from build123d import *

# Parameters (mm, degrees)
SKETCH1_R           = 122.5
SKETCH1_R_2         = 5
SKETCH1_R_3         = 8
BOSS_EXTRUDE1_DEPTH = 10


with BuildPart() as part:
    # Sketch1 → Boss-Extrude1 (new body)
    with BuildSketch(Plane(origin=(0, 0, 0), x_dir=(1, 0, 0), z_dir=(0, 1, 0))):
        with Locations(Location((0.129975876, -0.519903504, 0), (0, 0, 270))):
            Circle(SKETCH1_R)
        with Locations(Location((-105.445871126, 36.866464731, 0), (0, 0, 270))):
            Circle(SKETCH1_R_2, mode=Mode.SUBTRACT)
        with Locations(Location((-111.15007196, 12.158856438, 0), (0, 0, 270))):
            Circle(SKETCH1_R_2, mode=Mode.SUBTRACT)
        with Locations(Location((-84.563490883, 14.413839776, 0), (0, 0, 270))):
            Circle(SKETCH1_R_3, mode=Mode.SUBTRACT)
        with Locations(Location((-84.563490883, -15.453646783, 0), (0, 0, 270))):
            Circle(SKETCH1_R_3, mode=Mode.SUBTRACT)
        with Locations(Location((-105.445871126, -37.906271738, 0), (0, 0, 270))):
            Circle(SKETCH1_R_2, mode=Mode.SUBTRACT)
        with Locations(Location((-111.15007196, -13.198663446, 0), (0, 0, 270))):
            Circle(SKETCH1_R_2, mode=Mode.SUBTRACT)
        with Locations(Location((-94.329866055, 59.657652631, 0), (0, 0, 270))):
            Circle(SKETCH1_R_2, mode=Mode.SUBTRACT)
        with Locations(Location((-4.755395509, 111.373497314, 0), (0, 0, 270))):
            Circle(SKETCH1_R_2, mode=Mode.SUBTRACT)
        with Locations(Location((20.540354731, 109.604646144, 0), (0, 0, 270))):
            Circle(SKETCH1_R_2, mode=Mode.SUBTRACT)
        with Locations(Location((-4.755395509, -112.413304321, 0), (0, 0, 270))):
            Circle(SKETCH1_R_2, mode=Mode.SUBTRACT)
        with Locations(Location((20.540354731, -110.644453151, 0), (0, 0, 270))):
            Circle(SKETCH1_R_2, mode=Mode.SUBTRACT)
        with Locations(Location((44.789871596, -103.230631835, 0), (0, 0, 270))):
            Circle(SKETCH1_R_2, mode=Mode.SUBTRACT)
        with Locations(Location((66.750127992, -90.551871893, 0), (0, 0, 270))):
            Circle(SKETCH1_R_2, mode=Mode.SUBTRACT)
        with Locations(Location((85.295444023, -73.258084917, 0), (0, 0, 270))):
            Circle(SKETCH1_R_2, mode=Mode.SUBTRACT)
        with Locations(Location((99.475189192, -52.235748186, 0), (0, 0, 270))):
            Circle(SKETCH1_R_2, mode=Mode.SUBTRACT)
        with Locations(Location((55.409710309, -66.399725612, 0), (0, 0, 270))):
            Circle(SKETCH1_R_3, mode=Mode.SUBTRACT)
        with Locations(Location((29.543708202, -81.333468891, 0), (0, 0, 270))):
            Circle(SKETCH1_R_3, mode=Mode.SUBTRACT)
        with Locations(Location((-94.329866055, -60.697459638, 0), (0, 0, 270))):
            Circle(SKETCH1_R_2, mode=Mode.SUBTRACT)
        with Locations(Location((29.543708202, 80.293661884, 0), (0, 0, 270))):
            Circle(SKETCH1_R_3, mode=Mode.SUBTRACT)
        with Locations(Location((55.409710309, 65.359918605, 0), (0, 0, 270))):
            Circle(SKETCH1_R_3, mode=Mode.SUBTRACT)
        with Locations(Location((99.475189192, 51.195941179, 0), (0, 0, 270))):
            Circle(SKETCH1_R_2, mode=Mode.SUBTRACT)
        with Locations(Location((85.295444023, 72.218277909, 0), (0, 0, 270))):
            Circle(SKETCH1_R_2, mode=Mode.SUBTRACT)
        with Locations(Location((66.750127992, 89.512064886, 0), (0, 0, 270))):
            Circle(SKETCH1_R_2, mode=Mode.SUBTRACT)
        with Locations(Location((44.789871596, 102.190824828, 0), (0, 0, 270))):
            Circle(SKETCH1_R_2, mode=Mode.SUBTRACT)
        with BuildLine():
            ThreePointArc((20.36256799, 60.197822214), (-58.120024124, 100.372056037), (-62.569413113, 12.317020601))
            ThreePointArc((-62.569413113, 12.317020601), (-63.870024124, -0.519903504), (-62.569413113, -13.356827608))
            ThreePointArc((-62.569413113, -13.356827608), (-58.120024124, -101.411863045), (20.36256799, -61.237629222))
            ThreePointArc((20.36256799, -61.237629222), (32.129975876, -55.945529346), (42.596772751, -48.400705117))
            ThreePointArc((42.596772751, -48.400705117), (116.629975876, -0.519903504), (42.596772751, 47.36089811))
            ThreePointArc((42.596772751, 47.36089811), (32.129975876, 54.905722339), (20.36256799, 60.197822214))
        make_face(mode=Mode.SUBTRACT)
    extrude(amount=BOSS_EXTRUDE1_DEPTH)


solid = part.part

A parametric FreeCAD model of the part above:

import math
import FreeCAD as App
import Part
import Sketcher
from FreeCAD import Vector

doc = App.newDocument("Part")
body = doc.addObject("PartDesign::Body", "Body")

# Sketch on XZ plane
sketch1 = body.newObject("Sketcher::SketchObject", "Sketch")
sketch1.AttachmentSupport = (doc.getObject("XZ_Plane"), [""])
sketch1.MapMode = "FlatFace"
sketch1.addGeometry(Part.Circle(Vector(0, 1, 0), Vector(0, 0, 1), 122), False)
sketch1.addGeometry(Part.Circle(Vector(-94, -60, 0), Vector(0, 0, 1), 5), False)
sketch1.addGeometry(Part.Circle(Vector(-105, -37, 0), Vector(0, 0, 1), 5), False)
sketch1.addGeometry(Part.Circle(Vector(-111, -12, 0), Vector(0, 0, 1), 5), False)
sketch1.addGeometry(Part.Circle(Vector(-85, -14, 0), Vector(0, 0, 1), 8), False)
sketch1.addGeometry(Part.Circle(Vector(-5, -111, 0), Vector(0, 0, 1), 5), False)
sketch1.addGeometry(Part.Circle(Vector(-111, 13, 0), Vector(0, 0, 1), 5), False)
sketch1.addGeometry(Part.Circle(Vector(-105, 38, 0), Vector(0, 0, 1), 5), False)
sketch1.addGeometry(Part.Circle(Vector(-85, 15, 0), Vector(0, 0, 1), 8), False)
sketch1.addGeometry(Part.Circle(Vector(-94, 61, 0), Vector(0, 0, 1), 5), False)
sketch1.addGeometry(Part.Circle(Vector(-5, 112, 0), Vector(0, 0, 1), 5), False)
sketch1.addGeometry(Part.Circle(Vector(21, -110, 0), Vector(0, 0, 1), 5), False)
sketch1.addGeometry(Part.Circle(Vector(45, -102, 0), Vector(0, 0, 1), 5), False)
sketch1.addGeometry(Part.Circle(Vector(30, -80, 0), Vector(0, 0, 1), 8), False)
sketch1.addGeometry(Part.Circle(Vector(55, -65, 0), Vector(0, 0, 1), 8), False)
sketch1.addGeometry(Part.Circle(Vector(67, -90, 0), Vector(0, 0, 1), 5), False)
sketch1.addGeometry(Part.Circle(Vector(85, -72, 0), Vector(0, 0, 1), 5), False)
sketch1.addGeometry(Part.Circle(Vector(99, -51, 0), Vector(0, 0, 1), 5), False)
sketch1.addGeometry(Part.ArcOfCircle(Part.Circle(Vector(-32, -55, 0), Vector(0, 0, 1), 52), math.radians(126), math.radians(354)), False)
sketch1.addGeometry(Part.ArcOfCircle(Part.Circle(Vector(0, 1, 0), Vector(0, 0, 1), 64), math.radians(-72), math.radians(-48)), False)
sketch1.addGeometry(Part.ArcOfCircle(Part.Circle(Vector(64, 1, 0), Vector(0, 0, 1), 52), math.radians(-114), math.radians(114)), False)
sketch1.addGeometry(Part.ArcOfCircle(Part.Circle(Vector(0, 1, 0), Vector(0, 0, 1), 64), math.radians(48), math.radians(72)), False)
sketch1.addGeometry(Part.ArcOfCircle(Part.Circle(Vector(-32, 56, 0), Vector(0, 0, 1), 52), math.radians(6), math.radians(234)), False)
sketch1.addGeometry(Part.ArcOfCircle(Part.Circle(Vector(0, 1, 0), Vector(0, 0, 1), 64), math.radians(168), math.radians(192)), False)
sketch1.addGeometry(Part.Circle(Vector(21, 111, 0), Vector(0, 0, 1), 5), False)
sketch1.addGeometry(Part.Circle(Vector(30, 81, 0), Vector(0, 0, 1), 8), False)
sketch1.addGeometry(Part.Circle(Vector(55, 66, 0), Vector(0, 0, 1), 8), False)
sketch1.addGeometry(Part.Circle(Vector(45, 103, 0), Vector(0, 0, 1), 5), False)
sketch1.addGeometry(Part.Circle(Vector(99, 52, 0), Vector(0, 0, 1), 5), False)
sketch1.addGeometry(Part.Circle(Vector(85, 73, 0), Vector(0, 0, 1), 5), False)
sketch1.addGeometry(Part.Circle(Vector(67, 91, 0), Vector(0, 0, 1), 5), False)
sketch1.addConstraint(Sketcher.Constraint("Coincident", 18, 2, 19, 1))
sketch1.addConstraint(Sketcher.Constraint("Coincident", 19, 2, 20, 1))
sketch1.addConstraint(Sketcher.Constraint("Coincident", 20, 2, 21, 1))
sketch1.addConstraint(Sketcher.Constraint("Coincident", 21, 2, 22, 1))
sketch1.addConstraint(Sketcher.Constraint("Coincident", 22, 2, 23, 1))
sketch1.addConstraint(Sketcher.Constraint("Coincident", 23, 2, 18, 1))
sketch1.addConstraint(Sketcher.Constraint("Coincident", 19, 3, 0, 3))
sketch1.addConstraint(Sketcher.Constraint("Coincident", 21, 3, 0, 3))
sketch1.addConstraint(Sketcher.Constraint("Coincident", 23, 3, 0, 3))
sketch1.addConstraint(Sketcher.Constraint("Equal", 1, 2))
sketch1.addConstraint(Sketcher.Constraint("Equal", 2, 3))
sketch1.addConstraint(Sketcher.Constraint("Equal", 3, 5))
sketch1.addConstraint(Sketcher.Constraint("Equal", 5, 6))
sketch1.addConstraint(Sketcher.Constraint("Equal", 6, 7))
sketch1.addConstraint(Sketcher.Constraint("Equal", 4, 8))
sketch1.addConstraint(Sketcher.Constraint("Equal", 7, 9))
sketch1.addConstraint(Sketcher.Constraint("Equal", 9, 10))
sketch1.addConstraint(Sketcher.Constraint("Equal", 10, 11))
sketch1.addConstraint(Sketcher.Constraint("Equal", 11, 12))
sketch1.addConstraint(Sketcher.Constraint("Equal", 8, 13))
sketch1.addConstraint(Sketcher.Constraint("Equal", 13, 14))
sketch1.addConstraint(Sketcher.Constraint("Equal", 12, 15))
sketch1.addConstraint(Sketcher.Constraint("Equal", 15, 16))
sketch1.addConstraint(Sketcher.Constraint("Equal", 16, 17))
sketch1.addConstraint(Sketcher.Constraint("Equal", 18, 20))
sketch1.addConstraint(Sketcher.Constraint("Equal", 19, 21))
sketch1.addConstraint(Sketcher.Constraint("Equal", 20, 22))
sketch1.addConstraint(Sketcher.Constraint("Equal", 21, 23))
sketch1.addConstraint(Sketcher.Constraint("Equal", 17, 24))
sketch1.addConstraint(Sketcher.Constraint("Equal", 14, 25))
sketch1.addConstraint(Sketcher.Constraint("Equal", 25, 26))
sketch1.addConstraint(Sketcher.Constraint("Equal", 24, 27))
sketch1.addConstraint(Sketcher.Constraint("Equal", 27, 28))
sketch1.addConstraint(Sketcher.Constraint("Equal", 28, 29))
sketch1.addConstraint(Sketcher.Constraint("Equal", 29, 30))
sketch1.addConstraint(Sketcher.Constraint("Horizontal", 19, 3, 20, 3))
sketch1.addConstraint(Sketcher.Constraint("Vertical", 3, 3, 6, 3))
sketch1.addConstraint(Sketcher.Constraint("Vertical", 2, 3, 7, 3))
sketch1.addConstraint(Sketcher.Constraint("Vertical", 4, 3, 8, 3))
sketch1.addConstraint(Sketcher.Constraint("Vertical", 1, 3, 9, 3))
sketch1.addConstraint(Sketcher.Constraint("Vertical", 5, 3, 10, 3))
sketch1.addConstraint(Sketcher.Constraint("Vertical", 18, 3, 22, 3))
sketch1.addConstraint(Sketcher.Constraint("Vertical", 11, 3, 24, 3))
sketch1.addConstraint(Sketcher.Constraint("Vertical", 13, 3, 25, 3))
sketch1.addConstraint(Sketcher.Constraint("Vertical", 14, 3, 26, 3))
sketch1.addConstraint(Sketcher.Constraint("Vertical", 12, 3, 27, 3))
sketch1.addConstraint(Sketcher.Constraint("Vertical", 17, 3, 28, 3))
sketch1.addConstraint(Sketcher.Constraint("Vertical", 16, 3, 29, 3))
sketch1.addConstraint(Sketcher.Constraint("Vertical", 15, 3, 30, 3))
sketch1.addConstraint(Sketcher.Constraint("Vertical", 18, 2, 21, 2))
sketch1.addConstraint(Sketcher.Constraint("Diameter", 0, 245.0))
sketch1.addConstraint(Sketcher.Constraint("Diameter", 1, 10.0))
sketch1.addConstraint(Sketcher.Constraint("Diameter", 4, 16.0))
sketch1.addConstraint(Sketcher.Constraint("Radius", 19, 64.0))
sketch1.addConstraint(Sketcher.Constraint("Radius", 18, 52.5))
sketch1.addConstraint(Sketcher.Constraint("DistanceX", 18, 3, 0, 3, 32.0))
sketch1.addConstraint(Sketcher.Constraint("DistanceX", 19, 3, 20, 3, 64.0))
sketch1.addConstraint(Sketcher.Constraint("DistanceY", 19, 2, -1, 1, 47.360898))
sketch1.addConstraint(Sketcher.Constraint("DistanceX", 3, 3, 2, 3, 5.704201))
sketch1.addConstraint(Sketcher.Constraint("DistanceY", 5, 3, 0, 3, 111.893401))
sketch1.addConstraint(Sketcher.Constraint("DistanceY", 4, 3, 9, 3, 75.111299))
sketch1.addConstraint(Sketcher.Constraint("DistanceY", 0, 3, 10, 3, 111.893401))
sketch1.addConstraint(Sketcher.Constraint("DistanceY", 18, 2, 18, 3, 5.2921))
sketch1.addConstraint(Sketcher.Constraint("DistanceX", 2, 3, -1, 1, 105.445871))
sketch1.addConstraint(Sketcher.Constraint("DistanceX", 4, 3, -1, 1, 84.563491))
sketch1.addConstraint(Sketcher.Constraint("DistanceY", 4, 3, -1, 1, 14.41384))
sketch1.addConstraint(Sketcher.Constraint("DistanceY", -1, 1, 7, 3, 37.906272))
sketch1.addConstraint(Sketcher.Constraint("DistanceX", -1, 1, 12, 3, 44.789872))
sketch1.addConstraint(Sketcher.Constraint("DistanceX", -1, 1, 13, 3, 29.543708))
sketch1.addConstraint(Sketcher.Constraint("DistanceY", 13, 3, -1, 1, 80.293662))
sketch1.addConstraint(Sketcher.Constraint("DistanceX", -1, 1, 14, 3, 55.40971))
sketch1.addConstraint(Sketcher.Constraint("DistanceY", 14, 3, -1, 1, 65.359919))
sketch1.addConstraint(Sketcher.Constraint("DistanceX", -1, 1, 17, 3, 99.475189))
sketch1.addConstraint(Sketcher.Constraint("DistanceY", 17, 3, -1, 1, 51.195941))
sketch1.addConstraint(Sketcher.Constraint("DistanceY", -1, 1, 25, 3, 81.333469))
sketch1.addConstraint(Sketcher.Constraint("DistanceY", -1, 1, 27, 3, 103.230632))
sketch1.addConstraint(Sketcher.Constraint("DistanceY", -1, 1, 28, 3, 52.235748))
sketch1.addConstraint(Sketcher.Constraint("DistanceY", -1, 1, 30, 3, 90.551872))
sketch1.addConstraint(Sketcher.Constraint("DistanceX", 1, 3, 0, 3, 94.459842))
sketch1.addConstraint(Sketcher.Constraint("DistanceY", 2, 3, 0, 3, 37.386368))
sketch1.addConstraint(Sketcher.Constraint("DistanceY", 2, 3, 3, 3, 24.707608))
sketch1.addConstraint(Sketcher.Constraint("DistanceX", 1, 3, 5, 3, 89.574471))
sketch1.addConstraint(Sketcher.Constraint("DistanceY", 3, 3, 6, 3, 25.35752))
sketch1.addConstraint(Sketcher.Constraint("DistanceY", 2, 3, 8, 3, 52.320112))
sketch1.addConstraint(Sketcher.Constraint("DistanceX", 5, 3, 11, 3, 25.29575))
sketch1.addConstraint(Sketcher.Constraint("DistanceY", 5, 3, 11, 3, 1.768851))
sketch1.addConstraint(Sketcher.Constraint("DistanceY", 11, 3, 12, 3, 7.413821))
sketch1.addConstraint(Sketcher.Constraint("DistanceY", 13, 3, 1, 3, 20.636009))
sketch1.addConstraint(Sketcher.Constraint("DistanceY", 12, 3, 15, 3, 12.67876))
sketch1.addConstraint(Sketcher.Constraint("DistanceX", 13, 3, 15, 3, 37.20642))
sketch1.addConstraint(Sketcher.Constraint("DistanceY", 16, 3, 14, 3, 6.858359))
sketch1.addConstraint(Sketcher.Constraint("DistanceX", 11, 3, 16, 3, 64.755089))
sketch1.addConstraint(Sketcher.Constraint("DistanceY", 24, 3, 10, 3, 1.768851))
sketch1.addConstraint(Sketcher.Constraint("DistanceY", 26, 3, 10, 3, 46.013579))
sketch1.addConstraint(Sketcher.Constraint("DistanceY", 26, 3, 29, 3, 6.858359))
sketch1.addConstraint(Sketcher.Constraint("DistanceX", 18, 2, 13, 3, 9.18114))
pad1 = body.newObject("PartDesign::Pad", "Pad")
pad1.Profile = sketch1
pad1.Length = 10
pad1.Reversed = True

doc.recompute()
